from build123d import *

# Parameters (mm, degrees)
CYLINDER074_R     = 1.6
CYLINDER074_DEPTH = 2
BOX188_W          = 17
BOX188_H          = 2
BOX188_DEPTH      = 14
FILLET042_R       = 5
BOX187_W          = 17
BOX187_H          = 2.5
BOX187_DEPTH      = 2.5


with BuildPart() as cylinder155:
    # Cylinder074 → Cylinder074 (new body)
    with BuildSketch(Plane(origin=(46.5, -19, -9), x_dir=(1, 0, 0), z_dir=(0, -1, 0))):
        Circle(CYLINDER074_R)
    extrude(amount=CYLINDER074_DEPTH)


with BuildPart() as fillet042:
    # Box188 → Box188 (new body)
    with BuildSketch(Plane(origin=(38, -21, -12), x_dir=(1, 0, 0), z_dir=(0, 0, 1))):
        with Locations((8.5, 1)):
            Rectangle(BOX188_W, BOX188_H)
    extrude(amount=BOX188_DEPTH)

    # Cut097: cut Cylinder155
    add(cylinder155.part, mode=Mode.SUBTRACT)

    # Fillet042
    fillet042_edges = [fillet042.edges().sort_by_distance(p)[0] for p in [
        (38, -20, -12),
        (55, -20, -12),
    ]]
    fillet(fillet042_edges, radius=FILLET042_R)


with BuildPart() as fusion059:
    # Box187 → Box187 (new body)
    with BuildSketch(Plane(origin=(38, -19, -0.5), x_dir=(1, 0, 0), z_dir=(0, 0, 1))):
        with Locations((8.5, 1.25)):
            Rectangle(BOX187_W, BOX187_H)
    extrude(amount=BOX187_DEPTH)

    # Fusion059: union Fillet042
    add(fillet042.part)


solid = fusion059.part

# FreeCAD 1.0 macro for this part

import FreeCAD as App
import Part
import Sketcher
from FreeCAD import Vector
Q = App.Units.Quantity


def edges_at(feature, points):
    """Names of the edges that pass closest to the given points."""
    edges = feature.Shape.Edges
    near = lambda p: min(range(len(edges)), key=lambda i: edges[i].distToShape(Part.Vertex(*p))[0])
    return sorted({f"Edge{near(p) + 1}" for p in points})


def add_polygon(sketch, points):
    """Adds a closed chain of lines whose ends are joined by coincident constraints."""
    first, n = sketch.GeometryCount, len(points)
    for a, b in zip(points, points[1:] + points[:1]):
        sketch.addGeometry(Part.LineSegment(App.Vector(*a, 0), App.Vector(*b, 0)), False)
    for i in range(n):
        sketch.addConstraint(Sketcher.Constraint("Coincident", first + i, 2, first + (i + 1) % n, 1))

doc = App.newDocument("Part")
body = doc.addObject("PartDesign::Body", "Body")

sketch1 = body.newObject("Sketcher::SketchObject", "Sketch")
sketch1.AttachmentSupport = (doc.getObject("XZ_Plane"), [""])
sketch1.MapMode = "FlatFace"
sketch1.AttachmentOffset = App.Placement(Vector(0, 0, 19), App.Rotation())
sketch1.addGeometry(Part.Circle(Vector(46.5, -9, 0), Vector(0, 0, 1), 1.6), False)
sketch1.addConstraint(Sketcher.Constraint("Diameter", 0, Q("3.2 mm")))
sketch1.addConstraint(Sketcher.Constraint("DistanceY", 0, 3, -1, 1, Q("9 mm")))
sketch1.addConstraint(Sketcher.Constraint("DistanceX", -1, 1, 0, 3, Q("46.5 mm")))
pad1 = body.newObject("PartDesign::Pad", "Pad")
pad1.Profile = sketch1
pad1.Length = 2
body2 = doc.addObject("PartDesign::Body", "Body001")

sketch2 = body2.newObject("Sketcher::SketchObject", "Sketch001")
sketch2.AttachmentSupport = (doc.getObject("XY_Plane001"), [""])
sketch2.MapMode = "FlatFace"
sketch2.AttachmentOffset = App.Placement(Vector(0, 0, -12), App.Rotation())
add_polygon(sketch2, [(38, -19), (38, -21), (55, -21), (55, -19)])
sketch2.addConstraint(Sketcher.Constraint("Vertical", 0))
sketch2.addConstraint(Sketcher.Constraint("Horizontal", 1))
sketch2.addConstraint(Sketcher.Constraint("Vertical", 2))
sketch2.addConstraint(Sketcher.Constraint("Horizontal", 3))
sketch2.addConstraint(Sketcher.Constraint("DistanceX", 1, 1, 1, 2, Q("17 mm")))
sketch2.addConstraint(Sketcher.Constraint("DistanceY", 0, 2, 0, 1, Q("2 mm")))
sketch2.addConstraint(Sketcher.Constraint("DistanceX", -1, 1, 0, 2, Q("38 mm")))
sketch2.addConstraint(Sketcher.Constraint("DistanceY", 0, 2, -1, 1, Q("21 mm")))
pad2 = body2.newObject("PartDesign::Pad", "Pad001")
pad2.Profile = sketch2
pad2.Length = 14
doc.recompute()

boolean = body2.newObject("PartDesign::Boolean", "Boolean")
boolean.Type = "Cut"
boolean.addObjects([body])
doc.recompute()

fillet = body2.newObject("PartDesign::Fillet", "Fillet")
fillet.Base = (boolean, edges_at(boolean, [(38, -20, -12), (55, -20, -12)]))
fillet.Radius = 5
body3 = doc.addObject("PartDesign::Body", "Body002")

sketch3 = body3.newObject("Sketcher::SketchObject", "Sketch002")
sketch3.AttachmentSupport = (doc.getObject("XY_Plane002"), [""])
sketch3.MapMode = "FlatFace"
sketch3.AttachmentOffset = App.Placement(Vector(0, 0, -0.5), App.Rotation())
add_polygon(sketch3, [(38, -16.5), (38, -19), (55, -19), (55, -16.5)])
sketch3.addConstraint(Sketcher.Constraint("Vertical", 0))
sketch3.addConstraint(Sketcher.Constraint("Horizontal", 1))
sketch3.addConstraint(Sketcher.Constraint("Vertical", 2))
sketch3.addConstraint(Sketcher.Constraint("Horizontal", 3))
sketch3.addConstraint(Sketcher.Constraint("DistanceX", 1, 1, 1, 2, Q("17 mm")))
sketch3.addConstraint(Sketcher.Constraint("DistanceY", 0, 2, 0, 1, Q("2.5 mm")))
sketch3.addConstraint(Sketcher.Constraint("DistanceX", -1, 1, 0, 2, Q("38 mm")))
sketch3.addConstraint(Sketcher.Constraint("DistanceY", 0, 2, -1, 1, Q("19 mm")))
pad3 = body3.newObject("PartDesign::Pad", "Pad002")
pad3.Profile = sketch3
pad3.Length = 2.5
doc.recompute()

boolean2 = body3.newObject("PartDesign::Boolean", "Boolean001")
boolean2.Type = "Fuse"
boolean2.addObjects([body2])

doc.recompute()
